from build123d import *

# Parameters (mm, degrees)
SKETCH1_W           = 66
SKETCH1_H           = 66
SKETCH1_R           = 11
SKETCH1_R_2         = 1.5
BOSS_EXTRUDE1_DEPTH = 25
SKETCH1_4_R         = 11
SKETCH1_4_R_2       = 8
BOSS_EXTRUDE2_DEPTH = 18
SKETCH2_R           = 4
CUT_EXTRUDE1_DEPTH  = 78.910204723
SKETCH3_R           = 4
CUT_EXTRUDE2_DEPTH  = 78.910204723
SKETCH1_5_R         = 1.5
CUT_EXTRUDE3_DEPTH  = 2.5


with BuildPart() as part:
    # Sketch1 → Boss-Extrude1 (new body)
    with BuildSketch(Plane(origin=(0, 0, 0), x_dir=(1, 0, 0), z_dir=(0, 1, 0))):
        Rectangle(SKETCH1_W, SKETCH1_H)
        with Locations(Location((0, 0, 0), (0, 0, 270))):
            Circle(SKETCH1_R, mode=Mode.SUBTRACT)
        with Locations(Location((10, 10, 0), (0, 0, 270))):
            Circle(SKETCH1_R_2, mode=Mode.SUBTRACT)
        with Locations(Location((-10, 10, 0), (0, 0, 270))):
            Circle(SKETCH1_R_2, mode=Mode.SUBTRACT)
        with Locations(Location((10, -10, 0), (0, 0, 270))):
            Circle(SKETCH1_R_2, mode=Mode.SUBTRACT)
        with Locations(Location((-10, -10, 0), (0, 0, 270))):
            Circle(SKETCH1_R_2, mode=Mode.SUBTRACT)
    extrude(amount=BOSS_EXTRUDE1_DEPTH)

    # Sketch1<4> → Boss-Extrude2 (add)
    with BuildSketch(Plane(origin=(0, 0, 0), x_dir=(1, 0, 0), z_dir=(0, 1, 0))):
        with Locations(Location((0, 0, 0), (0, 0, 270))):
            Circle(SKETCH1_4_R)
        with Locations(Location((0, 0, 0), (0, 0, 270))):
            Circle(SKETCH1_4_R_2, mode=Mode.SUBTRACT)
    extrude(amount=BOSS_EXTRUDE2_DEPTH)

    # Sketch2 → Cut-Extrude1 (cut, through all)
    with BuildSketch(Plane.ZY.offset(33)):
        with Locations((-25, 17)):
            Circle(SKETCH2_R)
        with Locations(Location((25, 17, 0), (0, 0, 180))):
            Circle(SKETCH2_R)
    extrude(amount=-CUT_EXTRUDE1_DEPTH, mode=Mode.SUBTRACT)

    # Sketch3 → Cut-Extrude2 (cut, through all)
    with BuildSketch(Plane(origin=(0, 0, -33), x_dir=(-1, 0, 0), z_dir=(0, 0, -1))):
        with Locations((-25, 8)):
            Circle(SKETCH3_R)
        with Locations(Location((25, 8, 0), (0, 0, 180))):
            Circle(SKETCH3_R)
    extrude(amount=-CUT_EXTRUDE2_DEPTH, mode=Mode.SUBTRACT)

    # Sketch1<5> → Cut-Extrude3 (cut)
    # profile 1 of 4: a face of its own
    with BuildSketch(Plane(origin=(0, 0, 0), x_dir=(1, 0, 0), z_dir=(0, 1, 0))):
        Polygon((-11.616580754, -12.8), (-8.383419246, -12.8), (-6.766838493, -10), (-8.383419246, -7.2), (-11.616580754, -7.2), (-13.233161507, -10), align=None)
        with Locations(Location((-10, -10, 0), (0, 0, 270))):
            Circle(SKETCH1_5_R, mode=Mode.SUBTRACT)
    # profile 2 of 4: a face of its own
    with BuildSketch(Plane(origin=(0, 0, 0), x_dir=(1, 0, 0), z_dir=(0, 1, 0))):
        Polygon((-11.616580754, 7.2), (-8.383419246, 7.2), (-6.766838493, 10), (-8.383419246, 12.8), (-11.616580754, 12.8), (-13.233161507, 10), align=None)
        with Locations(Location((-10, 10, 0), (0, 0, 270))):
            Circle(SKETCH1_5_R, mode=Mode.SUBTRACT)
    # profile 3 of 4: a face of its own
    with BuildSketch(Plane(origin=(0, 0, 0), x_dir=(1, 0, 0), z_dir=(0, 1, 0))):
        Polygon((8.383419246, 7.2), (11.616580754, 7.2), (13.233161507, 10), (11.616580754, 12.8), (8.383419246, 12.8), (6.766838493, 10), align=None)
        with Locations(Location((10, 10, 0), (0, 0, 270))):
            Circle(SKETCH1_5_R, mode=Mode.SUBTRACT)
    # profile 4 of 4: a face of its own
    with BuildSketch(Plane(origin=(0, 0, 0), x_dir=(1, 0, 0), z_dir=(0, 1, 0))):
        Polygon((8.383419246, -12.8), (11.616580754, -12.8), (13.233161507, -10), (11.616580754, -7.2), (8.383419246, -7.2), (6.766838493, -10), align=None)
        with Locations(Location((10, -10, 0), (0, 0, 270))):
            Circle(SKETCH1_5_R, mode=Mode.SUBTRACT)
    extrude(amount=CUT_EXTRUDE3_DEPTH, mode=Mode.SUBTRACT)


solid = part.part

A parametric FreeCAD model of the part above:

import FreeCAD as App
import Part
import Sketcher
from FreeCAD import Vector
Q = App.Units.Quantity

doc = App.newDocument("Part")
body = doc.addObject("PartDesign::Body", "Body")

# Sketch on XZ plane
sketch1 = body.newObject("Sketcher::SketchObject", "Sketch")
sketch1.AttachmentSupport = (doc.getObject("XZ_Plane"), [""])
sketch1.MapMode = "FlatFace"
sketch1.addGeometry(Part.LineSegment(Vector(-33, -33, 0), Vector(-33, 33, 0)), False)
sketch1.addGeometry(Part.LineSegment(Vector(-33, 33, 0), Vector(33, 33, 0)), False)
sketch1.addGeometry(Part.LineSegment(Vector(33, 33, 0), Vector(33, -33, 0)), False)
sketch1.addGeometry(Part.LineSegment(Vector(33, -33, 0), Vector(-33, -33, 0)), False)
sketch1.addGeometry(Part.Circle(Vector(-10, 10, 0), Vector(0, 0, 1), 1.5), False)
sketch1.addGeometry(Part.Circle(Vector(10, 10, 0), Vector(0, 0, 1), 1.5), False)
sketch1.addGeometry(Part.Circle(Vector(-10, -10, 0), Vector(0, 0, 1), 1.5), False)
sketch1.addGeometry(Part.Circle(Vector(0, 0, 0), Vector(0, 0, 1), 11), False)
sketch1.addGeometry(Part.Circle(Vector(10, -10, 0), Vector(0, 0, 1), 1.5), False)
sketch1.addConstraint(Sketcher.Constraint("Coincident", 0, 2, 1, 1))
sketch1.addConstraint(Sketcher.Constraint("Coincident", 1, 2, 2, 1))
sketch1.addConstraint(Sketcher.Constraint("Coincident", 2, 2, 3, 1))
sketch1.addConstraint(Sketcher.Constraint("Coincident", 3, 2, 0, 1))
sketch1.addConstraint(Sketcher.Constraint("Vertical", 0))
sketch1.addConstraint(Sketcher.Constraint("Horizontal", 1))
sketch1.addConstraint(Sketcher.Constraint("Vertical", 2))
sketch1.addConstraint(Sketcher.Constraint("Horizontal", 3))
sketch1.addConstraint(Sketcher.Constraint("Coincident", 7, 3, -1, 1))
sketch1.addConstraint(Sketcher.Constraint("Equal", 4, 5))
sketch1.addConstraint(Sketcher.Constraint("Equal", 5, 6))
sketch1.addConstraint(Sketcher.Constraint("Equal", 6, 8))
sketch1.addConstraint(Sketcher.Constraint("Symmetric", 5, 3, 6, 3, -1, 1))
sketch1.addConstraint(Sketcher.Constraint("Symmetric", 4, 3, 8, 3, -1, 1))
sketch1.addConstraint(Sketcher.Constraint("Symmetric", 0, 2, 2, 2, -1, 1))
sketch1.addConstraint(Sketcher.Constraint("Symmetric", 4, 3, 5, 3, -2))
sketch1.addConstraint(Sketcher.Constraint("Equal", 3, 0))
sketch1.addConstraint(Sketcher.Constraint("Diameter", 4, Q("3 mm")))
sketch1.addConstraint(Sketcher.Constraint("Diameter", 7, Q("22 mm")))
sketch1.addConstraint(Sketcher.Constraint("DistanceX", 1, 1, 1, 2, Q("66 mm")))
sketch1.addConstraint(Sketcher.Constraint("DistanceX", 4, 3, -1, 1, Q("10 mm")))
sketch1.addConstraint(Sketcher.Constraint("DistanceY", -1, 1, 4, 3, Q("10 mm")))
pad1 = body.newObject("PartDesign::Pad", "Pad")
pad1.Profile = sketch1
pad1.Length = 25
pad1.Reversed = True

# Sketch on XZ plane
sketch2 = body.newObject("Sketcher::SketchObject", "Sketch001")
sketch2.AttachmentSupport = (doc.getObject("XZ_Plane"), [""])
sketch2.MapMode = "FlatFace"
sketch2.addGeometry(Part.Circle(Vector(0, 0, 0), Vector(0, 0, 1), 11), False)
sketch2.addGeometry(Part.Circle(Vector(0, 0, 0), Vector(0, 0, 1), 8), False)
sketch2.addConstraint(Sketcher.Constraint("Coincident", 0, 3, -1, 1))
sketch2.addConstraint(Sketcher.Constraint("Coincident", 1, 3, -1, 1))
sketch2.addConstraint(Sketcher.Constraint("Diameter", 0, Q("22 mm")))
sketch2.addConstraint(Sketcher.Constraint("Diameter", 1, Q("16 mm")))
pad2 = body.newObject("PartDesign::Pad", "Pad001")
pad2.Profile = sketch2
pad2.Length = 18
pad2.Reversed = True

# Sketch on YZ plane
sketch3 = body.newObject("Sketcher::SketchObject", "Sketch002")
sketch3.AttachmentSupport = (doc.getObject("YZ_Plane"), [""])
sketch3.MapMode = "FlatFace"
sketch3.AttachmentOffset = App.Placement(Vector(0, 0, -33), App.Rotation())
sketch3.addGeometry(Part.Circle(Vector(17, -25, 0), Vector(0, 0, 1), 4), False)
sketch3.addGeometry(Part.Circle(Vector(17, 25, 0), Vector(0, 0, 1), 4), False)
sketch3.addConstraint(Sketcher.Constraint("Equal", 0, 1))
sketch3.addConstraint(Sketcher.Constraint("Symmetric", 0, 3, 1, 3, -1))
sketch3.addConstraint(Sketcher.Constraint("Diameter", 0, Q("8 mm")))
sketch3.addConstraint(Sketcher.Constraint("DistanceX", -1, 1, 0, 3, Q("17 mm")))
sketch3.addConstraint(Sketcher.Constraint("DistanceY", 0, 3, -1, 1, Q("25 mm")))
pocket1 = body.newObject("PartDesign::Pocket", "Pocket")
pocket1.Profile = sketch3
pocket1.Type = "ThroughAll"
pocket1.Reversed = True

# Sketch on XY plane
sketch4 = body.newObject("Sketcher::SketchObject", "Sketch003")
sketch4.AttachmentSupport = (doc.getObject("XY_Plane"), [""])
sketch4.MapMode = "FlatFace"
sketch4.AttachmentOffset = App.Placement(Vector(0, 0, -33), App.Rotation())
sketch4.addGeometry(Part.Circle(Vector(25, 8, 0), Vector(0, 0, 1), 4), False)
sketch4.addGeometry(Part.Circle(Vector(-25, 8, 0), Vector(0, 0, 1), 4), False)
sketch4.addConstraint(Sketcher.Constraint("Equal", 0, 1))
sketch4.addConstraint(Sketcher.Constraint("Symmetric", 0, 3, 1, 3, -2))
sketch4.addConstraint(Sketcher.Constraint("Diameter", 0, Q("8 mm")))
sketch4.addConstraint(Sketcher.Constraint("DistanceX", -1, 1, 0, 3, Q("25 mm")))
sketch4.addConstraint(Sketcher.Constraint("DistanceY", -1, 1, 0, 3, Q("8 mm")))
pocket2 = body.newObject("PartDesign::Pocket", "Pocket001")
pocket2.Profile = sketch4
pocket2.Type = "ThroughAll"
pocket2.Reversed = True

# Sketch on XZ plane
sketch5 = body.newObject("Sketcher::SketchObject", "Sketch004")
sketch5.AttachmentSupport = (doc.getObject("XZ_Plane"), [""])
sketch5.MapMode = "FlatFace"
sketch5.addGeometry(Part.LineSegment(Vector(-11.616581, 12.8, 0), Vector(-8.383419, 12.8, 0)), False)
sketch5.addGeometry(Part.LineSegment(Vector(-8.383419, 12.8, 0), Vector(-6.766838, 10, 0)), False)
sketch5.addGeometry(Part.LineSegment(Vector(-6.766838, 10, 0), Vector(-8.383419, 7.2, 0)), False)
sketch5.addGeometry(Part.LineSegment(Vector(-8.383419, 7.2, 0), Vector(-11.616581, 7.2, 0)), False)
sketch5.addGeometry(Part.LineSegment(Vector(-11.616581, 7.2, 0), Vector(-13.233162, 10, 0)), False)
sketch5.addGeometry(Part.LineSegment(Vector(-13.233162, 10, 0), Vector(-11.616581, 12.8, 0)), False)
sketch5.addGeometry(Part.Circle(Vector(-10, 10, 0), Vector(0, 0, 1), 1.5), False)
sketch5.addGeometry(Part.LineSegment(Vector(-11.616581, -7.2, 0), Vector(-8.383419, -7.2, 0)), False)
sketch5.addGeometry(Part.LineSegment(Vector(-8.383419, -7.2, 0), Vector(-6.766838, -10, 0)), False)
sketch5.addGeometry(Part.LineSegment(Vector(-6.766838, -10, 0), Vector(-8.383419, -12.8, 0)), False)
sketch5.addGeometry(Part.LineSegment(Vector(-8.383419, -12.8, 0), Vector(-11.616581, -12.8, 0)), False)
sketch5.addGeometry(Part.LineSegment(Vector(-11.616581, -12.8, 0), Vector(-13.233162, -10, 0)), False)
sketch5.addGeometry(Part.LineSegment(Vector(-13.233162, -10, 0), Vector(-11.616581, -7.2, 0)), False)
sketch5.addGeometry(Part.Circle(Vector(-10, -10, 0), Vector(0, 0, 1), 1.5), False)
sketch5.addGeometry(Part.LineSegment(Vector(8.383419, -7.2, 0), Vector(11.616581, -7.2, 0)), False)
sketch5.addGeometry(Part.LineSegment(Vector(11.616581, -7.2, 0), Vector(13.233162, -10, 0)), False)
sketch5.addGeometry(Part.LineSegment(Vector(13.233162, -10, 0), Vector(11.616581, -12.8, 0)), False)
sketch5.addGeometry(Part.LineSegment(Vector(11.616581, -12.8, 0), Vector(8.383419, -12.8, 0)), False)
sketch5.addGeometry(Part.LineSegment(Vector(8.383419, -12.8, 0), Vector(6.766838, -10, 0)), False)
sketch5.addGeometry(Part.LineSegment(Vector(6.766838, -10, 0), Vector(8.383419, -7.2, 0)), False)
sketch5.addGeometry(Part.Circle(Vector(10, -10, 0), Vector(0, 0, 1), 1.5), False)
sketch5.addGeometry(Part.LineSegment(Vector(8.383419, 12.8, 0), Vector(11.616581, 12.8, 0)), False)
sketch5.addGeometry(Part.LineSegment(Vector(11.616581, 12.8, 0), Vector(13.233162, 10, 0)), False)
sketch5.addGeometry(Part.LineSegment(Vector(13.233162, 10, 0), Vector(11.616581, 7.2, 0)), False)
sketch5.addGeometry(Part.LineSegment(Vector(11.616581, 7.2, 0), Vector(8.383419, 7.2, 0)), False)
sketch5.addGeometry(Part.LineSegment(Vector(8.383419, 7.2, 0), Vector(6.766838, 10, 0)), False)
sketch5.addGeometry(Part.LineSegment(Vector(6.766838, 10, 0), Vector(8.383419, 12.8, 0)), False)
sketch5.addGeometry(Part.Circle(Vector(10, 10, 0), Vector(0, 0, 1), 1.5), False)
sketch5.addConstraint(Sketcher.Constraint("Coincident", 0, 2, 1, 1))
sketch5.addConstraint(Sketcher.Constraint("Coincident", 1, 2, 2, 1))
sketch5.addConstraint(Sketcher.Constraint("Coincident", 2, 2, 3, 1))
sketch5.addConstraint(Sketcher.Constraint("Coincident", 3, 2, 4, 1))
sketch5.addConstraint(Sketcher.Constraint("Coincident", 4, 2, 5, 1))
sketch5.addConstraint(Sketcher.Constraint("Coincident", 5, 2, 0, 1))
sketch5.addConstraint(Sketcher.Constraint("Coincident", 7, 2, 8, 1))
sketch5.addConstraint(Sketcher.Constraint("Coincident", 8, 2, 9, 1))
sketch5.addConstraint(Sketcher.Constraint("Coincident", 9, 2, 10, 1))
sketch5.addConstraint(Sketcher.Constraint("Coincident", 10, 2, 11, 1))
sketch5.addConstraint(Sketcher.Constraint("Coincident", 11, 2, 12, 1))
sketch5.addConstraint(Sketcher.Constraint("Coincident", 12, 2, 7, 1))
sketch5.addConstraint(Sketcher.Constraint("Coincident", 14, 2, 15, 1))
sketch5.addConstraint(Sketcher.Constraint("Coincident", 15, 2, 16, 1))
sketch5.addConstraint(Sketcher.Constraint("Coincident", 16, 2, 17, 1))
sketch5.addConstraint(Sketcher.Constraint("Coincident", 17, 2, 18, 1))
sketch5.addConstraint(Sketcher.Constraint("Coincident", 18, 2, 19, 1))
sketch5.addConstraint(Sketcher.Constraint("Coincident", 19, 2, 14, 1))
sketch5.addConstraint(Sketcher.Constraint("Coincident", 21, 2, 22, 1))
sketch5.addConstraint(Sketcher.Constraint("Coincident", 22, 2, 23, 1))
sketch5.addConstraint(Sketcher.Constraint("Coincident", 23, 2, 24, 1))
sketch5.addConstraint(Sketcher.Constraint("Coincident", 24, 2, 25, 1))
sketch5.addConstraint(Sketcher.Constraint("Coincident", 25, 2, 26, 1))
sketch5.addConstraint(Sketcher.Constraint("Coincident", 26, 2, 21, 1))
sketch5.addConstraint(Sketcher.Constraint("Horizontal", 0))
sketch5.addConstraint(Sketcher.Constraint("Horizontal", 3))
sketch5.addConstraint(Sketcher.Constraint("Horizontal", 7))
sketch5.addConstraint(Sketcher.Constraint("Horizontal", 10))
sketch5.addConstraint(Sketcher.Constraint("Horizontal", 14))
sketch5.addConstraint(Sketcher.Constraint("Horizontal", 17))
sketch5.addConstraint(Sketcher.Constraint("Horizontal", 21))
sketch5.addConstraint(Sketcher.Constraint("Horizontal", 24))
sketch5.addConstraint(Sketcher.Constraint("Equal", 6, 13))
sketch5.addConstraint(Sketcher.Constraint("Equal", 13, 20))
sketch5.addConstraint(Sketcher.Constraint("Equal", 20, 27))
sketch5.addConstraint(Sketcher.Constraint("Symmetric", 6, 3, 20, 3, -1, 1))
sketch5.addConstraint(Sketcher.Constraint("Symmetric", 13, 3, 27, 3, -1, 1))
sketch5.addConstraint(Sketcher.Constraint("Symmetric", 3, 2, 14, 2, -1, 1))
sketch5.addConstraint(Sketcher.Constraint("Symmetric", 4, 2, 15, 2, -1, 1))
sketch5.addConstraint(Sketcher.Constraint("Symmetric", 5, 2, 16, 2, -1, 1))
sketch5.addConstraint(Sketcher.Constraint("Symmetric", 1, 2, 18, 2, -1, 1))
sketch5.addConstraint(Sketcher.Constraint("Symmetric", 10, 2, 21, 2, -1, 1))
sketch5.addConstraint(Sketcher.Constraint("Symmetric", 11, 2, 22, 2, -1, 1))
sketch5.addConstraint(Sketcher.Constraint("Symmetric", 12, 2, 23, 2, -1, 1))
sketch5.addConstraint(Sketcher.Constraint("Symmetric", 8, 2, 25, 2, -1, 1))
sketch5.addConstraint(Sketcher.Constraint("Symmetric", 13, 3, 20, 3, -2))
sketch5.addConstraint(Sketcher.Constraint("Symmetric", 12, 2, 14, 2, -2))
sketch5.addConstraint(Sketcher.Constraint("Symmetric", 11, 2, 15, 2, -2))
sketch5.addConstraint(Sketcher.Constraint("Symmetric", 10, 2, 16, 2, -2))
sketch5.addConstraint(Sketcher.Constraint("Symmetric", 8, 2, 18, 2, -2))
sketch5.addConstraint(Sketcher.Constraint("Parallel", 1, 4))
sketch5.addConstraint(Sketcher.Constraint("Parallel", 2, 5))
sketch5.addConstraint(Sketcher.Constraint("Parallel", 4, 8))
sketch5.addConstraint(Sketcher.Constraint("Parallel", 5, 9))
sketch5.addConstraint(Sketcher.Constraint("Parallel", 8, 11))
sketch5.addConstraint(Sketcher.Constraint("Parallel", 15, 18))
sketch5.addConstraint(Sketcher.Constraint("Parallel", 16, 19))
sketch5.addConstraint(Sketcher.Constraint("Parallel", 22, 25))
sketch5.addConstraint(Sketcher.Constraint("Parallel", 23, 26))
sketch5.addConstraint(Sketcher.Constraint("Horizontal", 27, 3, 1, 2))
sketch5.addConstraint(Sketcher.Constraint("Horizontal", 1, 2, 4, 2))
sketch5.addConstraint(Sketcher.Constraint("Vertical", 0, 2, 2, 2))
sketch5.addConstraint(Sketcher.Constraint("Diameter", 6, Q("3 mm")))
sketch5.addConstraint(Sketcher.Constraint("Angle", 1, Q("-60 deg")))
sketch5.addConstraint(Sketcher.Constraint("DistanceX", 6, 3, -1, 1, Q("10 mm")))
sketch5.addConstraint(Sketcher.Constraint("DistanceY", -1, 1, 6, 3, Q("10 mm")))
sketch5.addConstraint(Sketcher.Constraint("DistanceX", 7, 2, 14, 2, Q("20 mm")))
sketch5.addConstraint(Sketcher.Constraint("DistanceY", -1, 1, 0, 2, Q("12.8 mm")))
sketch5.addConstraint(Sketcher.Constraint("DistanceX", 0, 1, 0, 2, Q("3.233162 mm")))
pocket3 = body.newObject("PartDesign::Pocket", "Pocket002")
pocket3.Profile = sketch5
pocket3.Length = 2.5

doc.recompute()
